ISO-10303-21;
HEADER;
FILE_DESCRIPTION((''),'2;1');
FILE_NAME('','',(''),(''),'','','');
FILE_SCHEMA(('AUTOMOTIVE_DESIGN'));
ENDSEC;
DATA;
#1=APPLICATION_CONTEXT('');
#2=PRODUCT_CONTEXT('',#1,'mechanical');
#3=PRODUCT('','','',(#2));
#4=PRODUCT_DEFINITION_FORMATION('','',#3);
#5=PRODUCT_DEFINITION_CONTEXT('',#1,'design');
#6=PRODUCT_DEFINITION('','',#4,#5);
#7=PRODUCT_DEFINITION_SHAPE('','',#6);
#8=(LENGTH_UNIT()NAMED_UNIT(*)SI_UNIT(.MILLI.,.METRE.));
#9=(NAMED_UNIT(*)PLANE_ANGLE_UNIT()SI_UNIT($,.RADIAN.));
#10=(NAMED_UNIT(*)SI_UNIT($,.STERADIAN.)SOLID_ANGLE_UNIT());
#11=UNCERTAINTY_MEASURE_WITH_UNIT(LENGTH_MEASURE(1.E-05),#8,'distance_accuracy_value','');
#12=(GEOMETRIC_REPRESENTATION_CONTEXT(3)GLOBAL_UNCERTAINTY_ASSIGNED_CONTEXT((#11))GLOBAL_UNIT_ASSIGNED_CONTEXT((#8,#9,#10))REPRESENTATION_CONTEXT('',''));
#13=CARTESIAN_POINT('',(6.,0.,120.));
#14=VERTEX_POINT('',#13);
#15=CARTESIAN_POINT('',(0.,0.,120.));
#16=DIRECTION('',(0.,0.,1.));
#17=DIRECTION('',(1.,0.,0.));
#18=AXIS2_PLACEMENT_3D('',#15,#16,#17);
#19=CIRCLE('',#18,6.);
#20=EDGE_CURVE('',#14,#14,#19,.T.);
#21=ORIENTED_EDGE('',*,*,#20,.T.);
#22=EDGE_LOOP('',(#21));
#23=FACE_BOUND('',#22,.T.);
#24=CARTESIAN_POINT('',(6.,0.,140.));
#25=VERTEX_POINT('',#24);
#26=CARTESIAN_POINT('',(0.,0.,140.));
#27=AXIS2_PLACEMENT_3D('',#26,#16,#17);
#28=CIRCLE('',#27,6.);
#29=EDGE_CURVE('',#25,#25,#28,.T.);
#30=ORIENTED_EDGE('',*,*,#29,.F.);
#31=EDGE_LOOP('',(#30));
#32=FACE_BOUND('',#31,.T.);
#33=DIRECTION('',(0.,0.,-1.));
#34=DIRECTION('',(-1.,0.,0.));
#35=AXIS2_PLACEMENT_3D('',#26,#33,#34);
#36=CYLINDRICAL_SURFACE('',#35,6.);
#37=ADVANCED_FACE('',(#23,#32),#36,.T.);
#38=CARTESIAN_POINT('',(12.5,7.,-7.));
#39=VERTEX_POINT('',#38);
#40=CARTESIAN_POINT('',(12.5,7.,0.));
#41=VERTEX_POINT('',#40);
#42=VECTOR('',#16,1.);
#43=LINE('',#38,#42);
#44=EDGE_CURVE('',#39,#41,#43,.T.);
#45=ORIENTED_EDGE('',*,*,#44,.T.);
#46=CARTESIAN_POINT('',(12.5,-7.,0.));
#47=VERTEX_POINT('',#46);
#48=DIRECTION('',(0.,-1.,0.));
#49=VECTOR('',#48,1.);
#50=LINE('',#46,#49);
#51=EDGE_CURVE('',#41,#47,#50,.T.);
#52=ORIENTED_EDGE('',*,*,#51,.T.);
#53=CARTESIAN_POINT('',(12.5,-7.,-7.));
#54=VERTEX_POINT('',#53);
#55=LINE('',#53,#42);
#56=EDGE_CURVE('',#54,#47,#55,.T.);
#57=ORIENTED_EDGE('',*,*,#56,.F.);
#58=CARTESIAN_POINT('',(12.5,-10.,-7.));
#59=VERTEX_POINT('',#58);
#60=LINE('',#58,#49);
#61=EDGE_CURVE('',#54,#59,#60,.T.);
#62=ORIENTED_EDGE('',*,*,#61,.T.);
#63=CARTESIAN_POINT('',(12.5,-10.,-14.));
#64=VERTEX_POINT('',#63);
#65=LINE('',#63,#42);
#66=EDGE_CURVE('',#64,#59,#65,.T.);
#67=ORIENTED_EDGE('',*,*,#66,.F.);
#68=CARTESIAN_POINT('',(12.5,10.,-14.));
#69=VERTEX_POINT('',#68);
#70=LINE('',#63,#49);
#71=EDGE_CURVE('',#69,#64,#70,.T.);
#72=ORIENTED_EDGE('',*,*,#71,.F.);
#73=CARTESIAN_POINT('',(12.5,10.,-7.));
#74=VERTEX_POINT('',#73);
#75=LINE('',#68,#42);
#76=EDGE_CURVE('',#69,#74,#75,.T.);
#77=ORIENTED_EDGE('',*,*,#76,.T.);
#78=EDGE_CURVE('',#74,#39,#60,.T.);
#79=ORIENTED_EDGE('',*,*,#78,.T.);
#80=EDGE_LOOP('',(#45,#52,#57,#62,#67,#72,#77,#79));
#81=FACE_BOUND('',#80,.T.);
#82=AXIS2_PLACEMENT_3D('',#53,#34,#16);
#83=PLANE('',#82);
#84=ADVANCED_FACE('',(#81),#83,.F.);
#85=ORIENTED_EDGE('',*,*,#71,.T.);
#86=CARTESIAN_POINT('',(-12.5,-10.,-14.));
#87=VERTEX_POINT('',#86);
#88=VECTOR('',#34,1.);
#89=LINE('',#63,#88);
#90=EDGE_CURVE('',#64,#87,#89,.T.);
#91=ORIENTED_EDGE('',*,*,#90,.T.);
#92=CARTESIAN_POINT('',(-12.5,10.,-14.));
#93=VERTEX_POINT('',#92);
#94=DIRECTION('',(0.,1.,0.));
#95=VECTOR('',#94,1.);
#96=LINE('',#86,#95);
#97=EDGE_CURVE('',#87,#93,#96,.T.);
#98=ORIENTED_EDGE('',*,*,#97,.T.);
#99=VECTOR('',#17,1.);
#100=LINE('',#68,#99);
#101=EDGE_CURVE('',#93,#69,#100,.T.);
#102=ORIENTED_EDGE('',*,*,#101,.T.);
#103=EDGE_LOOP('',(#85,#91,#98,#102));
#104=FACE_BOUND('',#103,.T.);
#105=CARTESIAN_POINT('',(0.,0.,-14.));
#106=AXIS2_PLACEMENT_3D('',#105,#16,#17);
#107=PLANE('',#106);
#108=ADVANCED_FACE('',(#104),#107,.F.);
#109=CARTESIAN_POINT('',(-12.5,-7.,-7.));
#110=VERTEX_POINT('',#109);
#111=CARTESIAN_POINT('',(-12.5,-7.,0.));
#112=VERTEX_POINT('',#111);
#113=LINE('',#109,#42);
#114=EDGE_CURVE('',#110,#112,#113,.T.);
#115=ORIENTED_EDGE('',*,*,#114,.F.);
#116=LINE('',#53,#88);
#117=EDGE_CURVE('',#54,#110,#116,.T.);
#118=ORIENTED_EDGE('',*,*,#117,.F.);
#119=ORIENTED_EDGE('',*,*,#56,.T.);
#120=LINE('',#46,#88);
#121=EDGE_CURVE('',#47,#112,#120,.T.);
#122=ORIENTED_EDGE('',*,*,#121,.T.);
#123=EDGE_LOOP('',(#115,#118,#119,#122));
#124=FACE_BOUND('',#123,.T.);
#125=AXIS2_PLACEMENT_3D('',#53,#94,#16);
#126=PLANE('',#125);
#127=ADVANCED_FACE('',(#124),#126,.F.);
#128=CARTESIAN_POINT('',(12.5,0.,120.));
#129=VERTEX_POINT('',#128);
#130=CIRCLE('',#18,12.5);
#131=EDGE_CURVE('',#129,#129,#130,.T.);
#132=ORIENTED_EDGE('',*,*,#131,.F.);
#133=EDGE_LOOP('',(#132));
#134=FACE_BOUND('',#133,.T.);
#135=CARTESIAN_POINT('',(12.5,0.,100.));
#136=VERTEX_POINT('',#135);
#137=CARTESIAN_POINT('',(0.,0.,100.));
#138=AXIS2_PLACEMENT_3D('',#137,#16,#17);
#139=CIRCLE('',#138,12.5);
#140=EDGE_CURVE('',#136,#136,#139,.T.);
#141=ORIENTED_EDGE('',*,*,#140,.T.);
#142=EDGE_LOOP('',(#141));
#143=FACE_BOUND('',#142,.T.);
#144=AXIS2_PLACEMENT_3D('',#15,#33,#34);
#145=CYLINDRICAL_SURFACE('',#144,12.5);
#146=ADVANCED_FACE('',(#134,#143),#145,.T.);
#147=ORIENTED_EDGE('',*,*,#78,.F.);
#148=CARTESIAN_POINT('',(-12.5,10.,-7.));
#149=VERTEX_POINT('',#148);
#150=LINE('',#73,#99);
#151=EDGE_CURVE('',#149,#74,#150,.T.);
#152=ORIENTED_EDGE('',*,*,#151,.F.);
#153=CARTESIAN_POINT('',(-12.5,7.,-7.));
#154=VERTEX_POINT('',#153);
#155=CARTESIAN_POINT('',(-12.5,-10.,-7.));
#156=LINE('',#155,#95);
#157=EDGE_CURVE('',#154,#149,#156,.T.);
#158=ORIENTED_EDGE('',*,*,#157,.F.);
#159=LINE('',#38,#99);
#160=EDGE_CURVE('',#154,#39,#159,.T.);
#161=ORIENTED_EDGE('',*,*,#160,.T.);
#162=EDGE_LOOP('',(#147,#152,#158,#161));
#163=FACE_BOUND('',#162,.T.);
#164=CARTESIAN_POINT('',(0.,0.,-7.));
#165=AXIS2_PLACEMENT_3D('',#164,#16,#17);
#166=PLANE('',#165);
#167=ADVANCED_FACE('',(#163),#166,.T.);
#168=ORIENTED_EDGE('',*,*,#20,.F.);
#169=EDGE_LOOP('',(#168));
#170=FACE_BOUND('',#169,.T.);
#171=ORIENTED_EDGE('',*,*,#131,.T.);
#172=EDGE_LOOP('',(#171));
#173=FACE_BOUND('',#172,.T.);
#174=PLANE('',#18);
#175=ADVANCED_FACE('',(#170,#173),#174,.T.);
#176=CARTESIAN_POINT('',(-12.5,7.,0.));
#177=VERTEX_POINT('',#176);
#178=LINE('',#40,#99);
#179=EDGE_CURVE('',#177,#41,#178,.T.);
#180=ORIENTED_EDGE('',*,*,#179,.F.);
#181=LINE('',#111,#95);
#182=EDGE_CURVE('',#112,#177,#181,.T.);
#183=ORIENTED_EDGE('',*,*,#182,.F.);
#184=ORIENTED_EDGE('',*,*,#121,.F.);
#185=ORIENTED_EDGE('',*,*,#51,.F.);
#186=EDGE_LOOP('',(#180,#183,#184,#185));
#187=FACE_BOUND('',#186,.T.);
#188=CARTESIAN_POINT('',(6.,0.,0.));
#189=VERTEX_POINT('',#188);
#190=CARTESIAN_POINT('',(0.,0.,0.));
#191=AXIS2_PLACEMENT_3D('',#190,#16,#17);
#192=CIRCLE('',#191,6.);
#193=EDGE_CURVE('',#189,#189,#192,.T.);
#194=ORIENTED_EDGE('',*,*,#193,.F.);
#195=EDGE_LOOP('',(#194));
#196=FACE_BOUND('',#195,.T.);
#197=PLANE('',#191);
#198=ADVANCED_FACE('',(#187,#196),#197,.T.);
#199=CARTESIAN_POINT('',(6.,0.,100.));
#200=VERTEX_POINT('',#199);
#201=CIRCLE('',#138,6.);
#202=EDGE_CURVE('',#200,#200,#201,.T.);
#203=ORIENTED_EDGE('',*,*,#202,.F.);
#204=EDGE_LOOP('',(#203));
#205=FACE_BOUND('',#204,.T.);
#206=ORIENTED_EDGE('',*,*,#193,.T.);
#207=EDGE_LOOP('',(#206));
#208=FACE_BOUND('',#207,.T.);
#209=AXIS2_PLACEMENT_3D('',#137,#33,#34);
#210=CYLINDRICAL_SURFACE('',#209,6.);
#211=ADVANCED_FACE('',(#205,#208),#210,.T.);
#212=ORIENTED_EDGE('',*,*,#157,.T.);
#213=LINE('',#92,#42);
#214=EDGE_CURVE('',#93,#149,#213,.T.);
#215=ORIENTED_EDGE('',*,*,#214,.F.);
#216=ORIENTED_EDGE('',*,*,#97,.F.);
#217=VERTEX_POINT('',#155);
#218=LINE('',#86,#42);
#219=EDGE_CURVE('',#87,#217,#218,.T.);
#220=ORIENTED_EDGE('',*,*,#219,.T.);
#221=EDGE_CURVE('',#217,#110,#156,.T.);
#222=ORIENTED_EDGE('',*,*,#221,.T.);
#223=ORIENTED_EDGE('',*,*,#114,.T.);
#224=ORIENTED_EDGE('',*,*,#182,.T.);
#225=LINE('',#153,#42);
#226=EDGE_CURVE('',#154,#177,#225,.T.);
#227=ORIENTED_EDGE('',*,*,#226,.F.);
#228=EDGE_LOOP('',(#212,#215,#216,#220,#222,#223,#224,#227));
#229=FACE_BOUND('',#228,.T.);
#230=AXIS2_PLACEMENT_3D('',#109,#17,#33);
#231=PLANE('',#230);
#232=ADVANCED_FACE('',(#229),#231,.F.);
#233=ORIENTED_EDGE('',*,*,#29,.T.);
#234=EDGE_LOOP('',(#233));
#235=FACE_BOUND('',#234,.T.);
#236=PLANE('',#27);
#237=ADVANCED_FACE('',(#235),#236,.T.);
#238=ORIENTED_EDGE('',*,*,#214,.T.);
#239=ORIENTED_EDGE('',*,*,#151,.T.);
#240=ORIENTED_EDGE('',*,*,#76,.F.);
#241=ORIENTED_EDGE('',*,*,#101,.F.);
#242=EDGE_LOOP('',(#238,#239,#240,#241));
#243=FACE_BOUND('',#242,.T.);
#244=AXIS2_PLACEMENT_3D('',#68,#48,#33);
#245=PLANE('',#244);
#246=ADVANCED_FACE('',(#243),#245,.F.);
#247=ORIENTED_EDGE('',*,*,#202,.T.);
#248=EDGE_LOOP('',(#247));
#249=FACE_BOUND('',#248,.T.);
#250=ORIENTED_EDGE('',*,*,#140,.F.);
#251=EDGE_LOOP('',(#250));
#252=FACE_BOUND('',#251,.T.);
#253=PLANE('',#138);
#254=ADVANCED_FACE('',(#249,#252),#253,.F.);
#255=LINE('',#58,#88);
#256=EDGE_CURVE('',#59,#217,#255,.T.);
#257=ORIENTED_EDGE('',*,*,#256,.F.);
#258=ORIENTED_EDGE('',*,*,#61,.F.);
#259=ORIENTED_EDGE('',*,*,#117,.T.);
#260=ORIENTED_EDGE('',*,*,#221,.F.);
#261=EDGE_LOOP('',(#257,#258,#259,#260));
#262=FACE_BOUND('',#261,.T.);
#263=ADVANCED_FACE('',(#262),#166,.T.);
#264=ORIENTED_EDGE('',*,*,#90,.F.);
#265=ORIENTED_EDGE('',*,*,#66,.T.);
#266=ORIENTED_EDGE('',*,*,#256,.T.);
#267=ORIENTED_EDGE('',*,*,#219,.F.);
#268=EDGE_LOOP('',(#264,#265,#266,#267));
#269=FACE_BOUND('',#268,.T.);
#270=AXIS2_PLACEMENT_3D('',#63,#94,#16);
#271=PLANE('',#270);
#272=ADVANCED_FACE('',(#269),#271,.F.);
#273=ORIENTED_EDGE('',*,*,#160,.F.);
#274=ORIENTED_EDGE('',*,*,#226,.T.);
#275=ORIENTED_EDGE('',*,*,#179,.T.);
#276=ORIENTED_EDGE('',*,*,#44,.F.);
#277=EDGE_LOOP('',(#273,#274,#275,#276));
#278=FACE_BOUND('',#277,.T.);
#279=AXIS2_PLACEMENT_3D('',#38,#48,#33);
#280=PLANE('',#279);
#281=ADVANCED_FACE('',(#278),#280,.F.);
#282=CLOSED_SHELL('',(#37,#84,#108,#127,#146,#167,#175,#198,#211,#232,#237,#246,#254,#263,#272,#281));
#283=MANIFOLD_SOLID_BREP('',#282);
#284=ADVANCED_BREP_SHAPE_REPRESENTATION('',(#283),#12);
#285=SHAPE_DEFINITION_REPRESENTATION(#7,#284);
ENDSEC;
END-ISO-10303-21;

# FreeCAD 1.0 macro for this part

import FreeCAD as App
import Part
import Sketcher
from FreeCAD import Vector

doc = App.newDocument("Part")
body = doc.addObject("PartDesign::Body", "Body")

sketch1 = body.newObject("Sketcher::SketchObject", "Sketch")
sketch1.AttachmentSupport = (doc.getObject("XY_Plane"), [""])
sketch1.MapMode = "FlatFace"
sketch1.addGeometry(Part.Circle(Vector(0, 0, 0), Vector(0, 0, 1), 6), False)
sketch1.addConstraint(Sketcher.Constraint("Coincident", 0, 3, -1, 1))
sketch1.addConstraint(Sketcher.Constraint("Diameter", 0, 12.0))
pad1 = body.newObject("PartDesign::Pad", "Pad")
pad1.Profile = sketch1
pad1.Length = 100

sketch2 = body.newObject("Sketcher::SketchObject", "Sketch001")
sketch2.AttachmentSupport = (doc.getObject("XY_Plane"), [""])
sketch2.MapMode = "FlatFace"
sketch2.AttachmentOffset = App.Placement(Vector(0, 0, 100), App.Rotation())
sketch2.addGeometry(Part.Circle(Vector(0, 0, 0), Vector(0, 0, 1), 12.5), False)
sketch2.addConstraint(Sketcher.Constraint("Coincident", 0, 3, -1, 1))
sketch2.addConstraint(Sketcher.Constraint("Diameter", 0, 25.0))
pad2 = body.newObject("PartDesign::Pad", "Pad001")
pad2.Profile = sketch2
pad2.Length = 20

sketch3 = body.newObject("Sketcher::SketchObject", "Sketch002")
sketch3.AttachmentSupport = (doc.getObject("XY_Plane"), [""])
sketch3.MapMode = "FlatFace"
sketch3.AttachmentOffset = App.Placement(Vector(0, 0, 120), App.Rotation())
sketch3.addGeometry(Part.Circle(Vector(0, 0, 0), Vector(0, 0, 1), 6), False)
sketch3.addConstraint(Sketcher.Constraint("Coincident", 0, 3, -1, 1))
sketch3.addConstraint(Sketcher.Constraint("Diameter", 0, 12.0))
pad3 = body.newObject("PartDesign::Pad", "Pad002")
pad3.Profile = sketch3
pad3.Length = 20

sketch4 = body.newObject("Sketcher::SketchObject", "Sketch003")
sketch4.AttachmentSupport = (doc.getObject("XY_Plane"), [""])
sketch4.MapMode = "FlatFace"
sketch4.addGeometry(Part.LineSegment(Vector(12.5, 7, 0), Vector(12.5, -7, 0)), False)
sketch4.addGeometry(Part.LineSegment(Vector(12.5, -7, 0), Vector(-12.5, -7, 0)), False)
sketch4.addGeometry(Part.LineSegment(Vector(-12.5, -7, 0), Vector(-12.5, 7, 0)), False)
sketch4.addGeometry(Part.LineSegment(Vector(-12.5, 7, 0), Vector(12.5, 7, 0)), False)
sketch4.addConstraint(Sketcher.Constraint("Coincident", 0, 2, 1, 1))
sketch4.addConstraint(Sketcher.Constraint("Coincident", 1, 2, 2, 1))
sketch4.addConstraint(Sketcher.Constraint("Coincident", 2, 2, 3, 1))
sketch4.addConstraint(Sketcher.Constraint("Coincident", 3, 2, 0, 1))
sketch4.addConstraint(Sketcher.Constraint("Vertical", 0))
sketch4.addConstraint(Sketcher.Constraint("Horizontal", 1))
sketch4.addConstraint(Sketcher.Constraint("Vertical", 2))
sketch4.addConstraint(Sketcher.Constraint("Horizontal", 3))
sketch4.addConstraint(Sketcher.Constraint("Symmetric", 0, 2, 2, 2, -1, 1))
sketch4.addConstraint(Sketcher.Constraint("DistanceX", 1, 2, 1, 1, 25.0))
sketch4.addConstraint(Sketcher.Constraint("DistanceY", 0, 2, 0, 1, 14.0))
pad4 = body.newObject("PartDesign::Pad", "Pad003")
pad4.Profile = sketch4
pad4.Length = 7
pad4.Reversed = True

sketch5 = body.newObject("Sketcher::SketchObject", "Sketch004")
sketch5.AttachmentSupport = (doc.getObject("XY_Plane"), [""])
sketch5.MapMode = "FlatFace"
sketch5.AttachmentOffset = App.Placement(Vector(0, 0, -7), App.Rotation())
sketch5.addGeometry(Part.LineSegment(Vector(12.5, 10, 0), Vector(12.5, -10, 0)), False)
sketch5.addGeometry(Part.LineSegment(Vector(12.5, -10, 0), Vector(-12.5, -10, 0)), False)
sketch5.addGeometry(Part.LineSegment(Vector(-12.5, -10, 0), Vector(-12.5, 10, 0)), False)
sketch5.addGeometry(Part.LineSegment(Vector(-12.5, 10, 0), Vector(12.5, 10, 0)), False)
sketch5.addConstraint(Sketcher.Constraint("Coincident", 0, 2, 1, 1))
sketch5.addConstraint(Sketcher.Constraint("Coincident", 1, 2, 2, 1))
sketch5.addConstraint(Sketcher.Constraint("Coincident", 2, 2, 3, 1))
sketch5.addConstraint(Sketcher.Constraint("Coincident", 3, 2, 0, 1))
sketch5.addConstraint(Sketcher.Constraint("Vertical", 0))
sketch5.addConstraint(Sketcher.Constraint("Horizontal", 1))
sketch5.addConstraint(Sketcher.Constraint("Vertical", 2))
sketch5.addConstraint(Sketcher.Constraint("Horizontal", 3))
sketch5.addConstraint(Sketcher.Constraint("Symmetric", 0, 2, 2, 2, -1, 1))
sketch5.addConstraint(Sketcher.Constraint("DistanceX", 1, 2, 1, 1, 25.0))
sketch5.addConstraint(Sketcher.Constraint("DistanceY", 0, 2, 0, 1, 20.0))
pad5 = body.newObject("PartDesign::Pad", "Pad004")
pad5.Profile = sketch5
pad5.Length = 7
pad5.Reversed = True

doc.recompute()
